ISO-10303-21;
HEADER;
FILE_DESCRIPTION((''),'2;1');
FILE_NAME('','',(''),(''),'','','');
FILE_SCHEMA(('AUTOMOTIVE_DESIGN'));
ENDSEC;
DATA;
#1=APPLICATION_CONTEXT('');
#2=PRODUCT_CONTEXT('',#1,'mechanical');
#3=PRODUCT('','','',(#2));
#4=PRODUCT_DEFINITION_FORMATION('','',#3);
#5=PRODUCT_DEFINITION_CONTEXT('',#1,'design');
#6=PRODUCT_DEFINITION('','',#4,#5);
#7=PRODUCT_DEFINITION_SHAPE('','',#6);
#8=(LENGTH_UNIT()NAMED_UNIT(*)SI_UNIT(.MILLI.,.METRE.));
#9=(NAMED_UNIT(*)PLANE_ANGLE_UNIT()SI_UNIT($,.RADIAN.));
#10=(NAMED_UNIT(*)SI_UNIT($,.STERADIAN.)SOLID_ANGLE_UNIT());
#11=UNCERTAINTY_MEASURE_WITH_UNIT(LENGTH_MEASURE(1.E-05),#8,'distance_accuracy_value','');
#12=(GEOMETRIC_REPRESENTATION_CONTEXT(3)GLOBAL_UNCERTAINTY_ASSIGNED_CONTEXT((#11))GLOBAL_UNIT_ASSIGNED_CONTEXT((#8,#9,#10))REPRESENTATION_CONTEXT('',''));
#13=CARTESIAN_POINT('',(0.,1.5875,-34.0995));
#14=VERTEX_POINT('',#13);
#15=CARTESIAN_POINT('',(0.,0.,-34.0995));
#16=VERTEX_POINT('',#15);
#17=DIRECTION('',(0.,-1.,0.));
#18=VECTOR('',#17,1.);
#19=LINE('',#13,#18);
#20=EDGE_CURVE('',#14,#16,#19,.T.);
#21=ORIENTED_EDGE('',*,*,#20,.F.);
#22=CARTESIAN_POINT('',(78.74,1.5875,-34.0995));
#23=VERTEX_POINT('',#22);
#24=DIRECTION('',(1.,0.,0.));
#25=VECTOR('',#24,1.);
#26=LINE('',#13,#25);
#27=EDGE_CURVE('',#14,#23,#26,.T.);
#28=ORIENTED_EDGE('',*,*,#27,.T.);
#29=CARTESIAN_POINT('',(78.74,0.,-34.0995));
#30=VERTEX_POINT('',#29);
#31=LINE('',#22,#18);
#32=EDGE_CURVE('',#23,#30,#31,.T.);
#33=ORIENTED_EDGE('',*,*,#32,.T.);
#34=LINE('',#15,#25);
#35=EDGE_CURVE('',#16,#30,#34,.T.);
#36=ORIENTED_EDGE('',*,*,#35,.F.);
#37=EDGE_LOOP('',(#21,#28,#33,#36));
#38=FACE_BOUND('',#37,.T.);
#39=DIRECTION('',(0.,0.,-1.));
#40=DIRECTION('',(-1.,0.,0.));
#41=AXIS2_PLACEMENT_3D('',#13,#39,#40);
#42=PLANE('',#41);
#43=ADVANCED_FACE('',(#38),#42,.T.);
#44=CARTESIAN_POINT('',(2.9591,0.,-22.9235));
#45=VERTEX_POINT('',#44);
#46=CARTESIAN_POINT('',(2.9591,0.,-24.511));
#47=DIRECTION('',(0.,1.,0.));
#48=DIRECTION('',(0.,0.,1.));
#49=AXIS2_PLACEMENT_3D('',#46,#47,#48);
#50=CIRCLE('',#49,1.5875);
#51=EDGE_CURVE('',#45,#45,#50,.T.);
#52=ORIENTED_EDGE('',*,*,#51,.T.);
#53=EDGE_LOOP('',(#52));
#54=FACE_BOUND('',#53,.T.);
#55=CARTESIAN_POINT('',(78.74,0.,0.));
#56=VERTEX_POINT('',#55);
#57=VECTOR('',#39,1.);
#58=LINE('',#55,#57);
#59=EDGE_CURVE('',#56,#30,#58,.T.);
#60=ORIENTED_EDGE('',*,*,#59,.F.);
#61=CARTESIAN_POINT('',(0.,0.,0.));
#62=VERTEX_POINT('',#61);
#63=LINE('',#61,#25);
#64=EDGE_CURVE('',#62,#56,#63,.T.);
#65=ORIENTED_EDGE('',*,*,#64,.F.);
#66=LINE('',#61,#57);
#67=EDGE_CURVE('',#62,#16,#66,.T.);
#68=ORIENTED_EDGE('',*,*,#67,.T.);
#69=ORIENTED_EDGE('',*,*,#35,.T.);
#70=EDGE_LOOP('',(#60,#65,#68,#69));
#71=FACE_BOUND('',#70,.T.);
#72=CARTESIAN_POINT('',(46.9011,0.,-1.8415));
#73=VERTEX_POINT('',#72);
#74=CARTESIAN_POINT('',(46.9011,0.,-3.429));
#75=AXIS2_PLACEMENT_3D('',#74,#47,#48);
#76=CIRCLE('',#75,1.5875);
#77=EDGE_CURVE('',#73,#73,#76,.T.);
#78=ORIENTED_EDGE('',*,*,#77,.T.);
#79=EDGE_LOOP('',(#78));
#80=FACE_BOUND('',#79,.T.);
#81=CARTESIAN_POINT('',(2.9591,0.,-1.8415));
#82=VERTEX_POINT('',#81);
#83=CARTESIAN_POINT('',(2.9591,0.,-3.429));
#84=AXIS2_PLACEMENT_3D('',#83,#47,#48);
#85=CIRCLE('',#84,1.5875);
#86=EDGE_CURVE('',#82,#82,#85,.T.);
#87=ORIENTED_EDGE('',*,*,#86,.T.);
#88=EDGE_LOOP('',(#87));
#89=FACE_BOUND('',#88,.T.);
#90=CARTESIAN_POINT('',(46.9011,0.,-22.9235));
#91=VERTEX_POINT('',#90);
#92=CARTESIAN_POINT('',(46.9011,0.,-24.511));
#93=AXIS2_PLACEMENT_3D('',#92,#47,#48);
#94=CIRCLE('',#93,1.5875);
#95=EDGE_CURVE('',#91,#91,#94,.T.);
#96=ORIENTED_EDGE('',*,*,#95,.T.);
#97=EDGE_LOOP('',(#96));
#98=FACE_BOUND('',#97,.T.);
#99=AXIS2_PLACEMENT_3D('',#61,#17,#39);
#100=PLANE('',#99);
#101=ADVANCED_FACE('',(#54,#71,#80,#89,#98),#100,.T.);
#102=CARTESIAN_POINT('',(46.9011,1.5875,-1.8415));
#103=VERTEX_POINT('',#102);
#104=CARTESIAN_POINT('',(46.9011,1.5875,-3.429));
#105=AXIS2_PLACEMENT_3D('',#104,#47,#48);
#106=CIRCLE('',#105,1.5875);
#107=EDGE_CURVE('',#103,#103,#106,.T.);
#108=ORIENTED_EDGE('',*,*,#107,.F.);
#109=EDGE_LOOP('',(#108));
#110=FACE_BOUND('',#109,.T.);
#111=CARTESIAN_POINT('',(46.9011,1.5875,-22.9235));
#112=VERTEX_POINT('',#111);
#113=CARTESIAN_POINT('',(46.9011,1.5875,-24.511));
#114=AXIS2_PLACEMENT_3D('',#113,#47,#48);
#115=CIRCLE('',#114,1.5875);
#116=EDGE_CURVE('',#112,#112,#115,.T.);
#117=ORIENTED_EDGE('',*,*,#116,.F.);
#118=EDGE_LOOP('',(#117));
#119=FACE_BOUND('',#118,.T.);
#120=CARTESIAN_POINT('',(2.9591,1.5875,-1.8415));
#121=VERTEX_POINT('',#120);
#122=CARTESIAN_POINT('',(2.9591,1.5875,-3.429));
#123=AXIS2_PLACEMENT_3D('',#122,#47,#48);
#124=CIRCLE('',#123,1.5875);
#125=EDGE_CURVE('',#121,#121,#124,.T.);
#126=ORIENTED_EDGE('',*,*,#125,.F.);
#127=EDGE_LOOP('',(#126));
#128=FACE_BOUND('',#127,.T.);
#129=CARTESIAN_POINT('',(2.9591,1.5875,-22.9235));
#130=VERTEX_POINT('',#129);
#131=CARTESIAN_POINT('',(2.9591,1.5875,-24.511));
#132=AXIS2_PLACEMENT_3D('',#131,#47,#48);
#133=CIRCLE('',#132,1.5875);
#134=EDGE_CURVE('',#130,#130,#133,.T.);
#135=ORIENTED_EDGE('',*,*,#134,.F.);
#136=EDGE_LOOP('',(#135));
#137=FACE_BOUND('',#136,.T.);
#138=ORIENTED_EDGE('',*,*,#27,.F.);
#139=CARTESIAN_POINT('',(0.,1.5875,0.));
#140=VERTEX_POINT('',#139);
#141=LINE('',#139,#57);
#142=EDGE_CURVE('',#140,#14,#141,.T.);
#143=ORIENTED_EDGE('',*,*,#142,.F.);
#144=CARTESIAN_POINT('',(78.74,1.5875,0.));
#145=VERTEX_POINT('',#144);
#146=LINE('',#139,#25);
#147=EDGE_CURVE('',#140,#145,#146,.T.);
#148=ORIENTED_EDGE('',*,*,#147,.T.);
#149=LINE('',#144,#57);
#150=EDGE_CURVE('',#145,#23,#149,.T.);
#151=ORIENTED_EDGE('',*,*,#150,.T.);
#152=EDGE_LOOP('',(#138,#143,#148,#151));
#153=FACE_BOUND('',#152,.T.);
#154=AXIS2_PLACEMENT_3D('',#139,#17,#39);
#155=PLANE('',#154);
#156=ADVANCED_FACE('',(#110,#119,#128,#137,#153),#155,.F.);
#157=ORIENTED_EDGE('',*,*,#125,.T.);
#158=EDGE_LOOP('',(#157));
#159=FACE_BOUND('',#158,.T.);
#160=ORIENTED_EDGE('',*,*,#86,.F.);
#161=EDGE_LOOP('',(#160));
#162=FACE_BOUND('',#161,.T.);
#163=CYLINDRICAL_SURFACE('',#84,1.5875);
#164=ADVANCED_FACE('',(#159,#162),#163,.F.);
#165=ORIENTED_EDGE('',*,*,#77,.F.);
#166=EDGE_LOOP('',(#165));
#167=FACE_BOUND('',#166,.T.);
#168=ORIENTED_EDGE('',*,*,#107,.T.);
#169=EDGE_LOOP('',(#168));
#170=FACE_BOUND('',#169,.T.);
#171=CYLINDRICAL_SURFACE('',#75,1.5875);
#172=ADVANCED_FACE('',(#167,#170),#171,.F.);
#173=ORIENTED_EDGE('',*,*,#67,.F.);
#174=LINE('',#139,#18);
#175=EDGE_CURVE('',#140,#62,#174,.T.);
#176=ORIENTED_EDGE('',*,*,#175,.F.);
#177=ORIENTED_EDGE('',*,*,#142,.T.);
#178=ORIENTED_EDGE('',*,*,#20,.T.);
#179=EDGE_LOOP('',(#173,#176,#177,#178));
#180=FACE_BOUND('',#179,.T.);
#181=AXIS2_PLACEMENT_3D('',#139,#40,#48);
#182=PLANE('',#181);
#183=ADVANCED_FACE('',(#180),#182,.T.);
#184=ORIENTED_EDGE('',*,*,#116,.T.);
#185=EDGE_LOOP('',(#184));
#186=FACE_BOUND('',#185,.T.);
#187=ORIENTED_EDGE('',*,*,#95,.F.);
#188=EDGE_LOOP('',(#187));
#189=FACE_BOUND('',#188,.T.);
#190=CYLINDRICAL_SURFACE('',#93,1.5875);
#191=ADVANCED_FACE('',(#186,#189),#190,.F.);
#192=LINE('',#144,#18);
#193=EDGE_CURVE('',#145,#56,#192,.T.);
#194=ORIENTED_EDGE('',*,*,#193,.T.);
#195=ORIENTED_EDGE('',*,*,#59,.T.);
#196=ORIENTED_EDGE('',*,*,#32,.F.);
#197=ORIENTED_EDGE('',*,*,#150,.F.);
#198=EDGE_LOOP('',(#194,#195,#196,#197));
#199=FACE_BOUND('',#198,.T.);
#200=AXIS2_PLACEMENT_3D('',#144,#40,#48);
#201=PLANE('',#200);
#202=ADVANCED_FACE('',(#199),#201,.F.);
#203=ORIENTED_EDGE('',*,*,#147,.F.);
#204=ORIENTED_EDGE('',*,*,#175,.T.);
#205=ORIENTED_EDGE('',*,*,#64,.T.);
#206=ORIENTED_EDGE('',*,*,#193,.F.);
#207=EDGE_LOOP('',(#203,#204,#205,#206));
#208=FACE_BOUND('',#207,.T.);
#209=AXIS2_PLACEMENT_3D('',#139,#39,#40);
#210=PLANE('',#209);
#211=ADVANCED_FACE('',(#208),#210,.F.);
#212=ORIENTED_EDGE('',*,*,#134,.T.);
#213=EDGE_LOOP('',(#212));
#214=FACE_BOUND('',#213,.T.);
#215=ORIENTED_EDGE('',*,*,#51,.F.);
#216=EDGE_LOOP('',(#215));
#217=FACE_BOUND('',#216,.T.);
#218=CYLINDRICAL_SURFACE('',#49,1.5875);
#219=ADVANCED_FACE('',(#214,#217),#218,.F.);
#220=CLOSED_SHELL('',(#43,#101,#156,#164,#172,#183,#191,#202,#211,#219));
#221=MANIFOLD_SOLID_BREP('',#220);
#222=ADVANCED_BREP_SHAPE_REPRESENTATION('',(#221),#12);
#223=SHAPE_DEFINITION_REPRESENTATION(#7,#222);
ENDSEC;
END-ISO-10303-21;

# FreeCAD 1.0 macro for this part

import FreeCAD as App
import Part
import Sketcher
Q = App.Units.Quantity

doc = App.newDocument("Part")
body = doc.addObject("PartDesign::Body", "Body")

sketch1 = body.newObject("Sketcher::SketchObject", "Sketch")
sketch1.AttachmentSupport = (doc.getObject("XZ_Plane"), [""])
sketch1.MapMode = "FlatFace"
sketch1.addGeometry([
    Part.LineSegment(App.Vector(0, -34, 0), App.Vector(0, 0, 0)),
    Part.LineSegment(App.Vector(0, 0, 0), App.Vector(79, 0, 0)),
    Part.LineSegment(App.Vector(79, 0, 0), App.Vector(79, -34, 0)),
    Part.LineSegment(App.Vector(79, -34, 0), App.Vector(0, -34, 0)),
], False)
sketch1.addConstraint([
    Sketcher.Constraint("Coincident", 0, 2, 1, 1),
    Sketcher.Constraint("Coincident", 1, 2, 2, 1),
    Sketcher.Constraint("Coincident", 2, 2, 3, 1),
    Sketcher.Constraint("Coincident", 3, 2, 0, 1),
    Sketcher.Constraint("Vertical", 0),
    Sketcher.Constraint("Horizontal", 1),
    Sketcher.Constraint("Vertical", 2),
    Sketcher.Constraint("Horizontal", 3),
    Sketcher.Constraint("Coincident", 0, 2, -1, 1),
    Sketcher.Constraint("DistanceX", 1, 1, 1, 2, Q("3.1 in")),
    Sketcher.Constraint("DistanceY", 0, 1, 0, 2, Q("1.3425 in")),
])
pad1 = body.newObject("PartDesign::Pad", "Pad")
pad1.Profile = sketch1
pad1.Length = Q("0.0625 in")
pad1.Reversed = True

sketch2 = body.newObject("Sketcher::SketchObject", "Sketch001")
sketch2.AttachmentSupport = (doc.getObject("XZ_Plane"), [""])
sketch2.MapMode = "FlatFace"
sketch2.AttachmentOffset = App.Placement(App.Vector(0, 0, -0.0625 * 25.4), App.Rotation())
sketch2.addGeometry([
    Part.Circle(App.Vector(3, -24.5, 0), App.Vector(0, 0, 1), 1.6),
    Part.Circle(App.Vector(46.9, -24.5, 0), App.Vector(0, 0, 1), 1.6),
    Part.Circle(App.Vector(3, -3.4, 0), App.Vector(0, 0, 1), 1.6),
    Part.Circle(App.Vector(46.9, -3.4, 0), App.Vector(0, 0, 1), 1.6),
], False)
sketch2.addConstraint([
    Sketcher.Constraint("Equal", 0, 1),
    Sketcher.Constraint("Equal", 1, 2),
    Sketcher.Constraint("Equal", 2, 3),
    Sketcher.Constraint("Horizontal", 0, 3, 1, 3),
    Sketcher.Constraint("Horizontal", 2, 3, 3, 3),
    Sketcher.Constraint("Vertical", 0, 3, 2, 3),
    Sketcher.Constraint("Vertical", 1, 3, 3, 3),
    Sketcher.Constraint("Diameter", 0, Q("0.125 in")),
    Sketcher.Constraint("DistanceX", 0, 3, 1, 3, Q("1.73 in")),
    Sketcher.Constraint("DistanceY", 0, 3, 2, 3, Q("0.83 in")),
    Sketcher.Constraint("DistanceY", 0, 3, -1, 1, Q("0.965 in")),
    Sketcher.Constraint("DistanceX", -1, 1, 0, 3, Q("0.1165 in")),
])
pocket1 = body.newObject("PartDesign::Pocket", "Pocket")
pocket1.Profile = sketch2
pocket1.Type = "ThroughAll"
pocket1.Reversed = True

doc.recompute()
